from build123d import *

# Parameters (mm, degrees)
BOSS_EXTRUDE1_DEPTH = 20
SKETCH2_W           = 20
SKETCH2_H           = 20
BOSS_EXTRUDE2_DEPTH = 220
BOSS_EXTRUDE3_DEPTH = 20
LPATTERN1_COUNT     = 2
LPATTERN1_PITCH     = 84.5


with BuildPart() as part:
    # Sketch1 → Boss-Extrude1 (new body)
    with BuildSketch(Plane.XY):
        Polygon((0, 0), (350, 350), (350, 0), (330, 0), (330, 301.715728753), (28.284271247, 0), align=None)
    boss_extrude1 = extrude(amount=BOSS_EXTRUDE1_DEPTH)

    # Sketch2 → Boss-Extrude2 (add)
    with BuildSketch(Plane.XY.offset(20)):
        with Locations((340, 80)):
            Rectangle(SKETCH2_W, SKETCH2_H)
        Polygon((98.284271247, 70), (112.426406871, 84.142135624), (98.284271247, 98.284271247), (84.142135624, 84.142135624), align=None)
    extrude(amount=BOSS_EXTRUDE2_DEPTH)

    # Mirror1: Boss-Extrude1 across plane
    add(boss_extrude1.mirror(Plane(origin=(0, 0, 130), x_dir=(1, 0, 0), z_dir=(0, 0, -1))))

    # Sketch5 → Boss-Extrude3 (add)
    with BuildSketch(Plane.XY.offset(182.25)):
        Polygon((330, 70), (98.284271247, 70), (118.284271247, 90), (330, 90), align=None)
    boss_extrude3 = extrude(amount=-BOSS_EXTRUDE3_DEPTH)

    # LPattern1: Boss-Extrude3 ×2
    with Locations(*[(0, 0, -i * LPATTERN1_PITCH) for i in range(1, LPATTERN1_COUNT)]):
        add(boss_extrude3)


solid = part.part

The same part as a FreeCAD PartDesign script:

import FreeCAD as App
import Part
import Sketcher

V = App.Vector
Q = App.Units.Quantity

doc = App.newDocument("Part")
body = doc.addObject("PartDesign::Body", "Body")

# Sketch on XY plane
sketch1 = body.newObject("Sketcher::SketchObject", "Sketch")
sketch1.AttachmentSupport = (doc.getObject("XY_Plane"), [""])
sketch1.MapMode = "FlatFace"
sketch1.addGeometry(Part.LineSegment(V(350, 350, 0), V(0, 0, 0)), False)
sketch1.addGeometry(Part.LineSegment(V(0, 0, 0), V(28, 0, 0)), False)
sketch1.addGeometry(Part.LineSegment(V(28, 0, 0), V(330, 302, 0)), False)
sketch1.addGeometry(Part.LineSegment(V(330, 302, 0), V(330, 0, 0)), False)
sketch1.addGeometry(Part.LineSegment(V(330, 0, 0), V(350, 0, 0)), False)
sketch1.addGeometry(Part.LineSegment(V(350, 0, 0), V(350, 350, 0)), False)
sketch1.addConstraint(Sketcher.Constraint("Coincident", 0, 2, 1, 1))
sketch1.addConstraint(Sketcher.Constraint("Coincident", 1, 2, 2, 1))
sketch1.addConstraint(Sketcher.Constraint("Coincident", 2, 2, 3, 1))
sketch1.addConstraint(Sketcher.Constraint("Coincident", 3, 2, 4, 1))
sketch1.addConstraint(Sketcher.Constraint("Coincident", 4, 2, 5, 1))
sketch1.addConstraint(Sketcher.Constraint("Coincident", 5, 2, 0, 1))
sketch1.addConstraint(Sketcher.Constraint("Horizontal", 1))
sketch1.addConstraint(Sketcher.Constraint("Vertical", 3))
sketch1.addConstraint(Sketcher.Constraint("Horizontal", 4))
sketch1.addConstraint(Sketcher.Constraint("Vertical", 5))
sketch1.addConstraint(Sketcher.Constraint("Coincident", 0, 2, -1, 1))
sketch1.addConstraint(Sketcher.Constraint("PointOnObject", 3, 2, -1))
sketch1.addConstraint(Sketcher.Constraint("Parallel", 0, 2))
sketch1.addConstraint(Sketcher.Constraint("DistanceX", 4, 1, 4, 2, 20.0))
sketch1.addConstraint(Sketcher.Constraint("DistanceY", 5, 1, 5, 2, 350.0))
sketch1.addConstraint(Sketcher.Constraint("Angle", 0, Q("-135 deg")))
sketch1.addConstraint(Sketcher.Constraint("DistanceX", 1, 1, 1, 2, 28.284271))
pad1 = body.newObject("PartDesign::Pad", "Pad")
pad1.Profile = sketch1
pad1.Length = 20

# Sketch on XY plane
sketch2 = body.newObject("Sketcher::SketchObject", "Sketch001")
sketch2.AttachmentSupport = (doc.getObject("XY_Plane"), [""])
sketch2.MapMode = "FlatFace"
sketch2.AttachmentOffset = App.Placement(V(0, 0, 20), App.Rotation())
sketch2.addGeometry(Part.LineSegment(V(330, 90, 0), V(330, 70, 0)), False)
sketch2.addGeometry(Part.LineSegment(V(330, 70, 0), V(350, 70, 0)), False)
sketch2.addGeometry(Part.LineSegment(V(350, 70, 0), V(350, 90, 0)), False)
sketch2.addGeometry(Part.LineSegment(V(350, 90, 0), V(330, 90, 0)), False)
sketch2.addGeometry(Part.LineSegment(V(98, 70, 0), V(112, 84, 0)), False)
sketch2.addGeometry(Part.LineSegment(V(112, 84, 0), V(98, 98, 0)), False)
sketch2.addGeometry(Part.LineSegment(V(98, 98, 0), V(84, 84, 0)), False)
sketch2.addGeometry(Part.LineSegment(V(84, 84, 0), V(98, 70, 0)), False)
sketch2.addConstraint(Sketcher.Constraint("Coincident", 0, 2, 1, 1))
sketch2.addConstraint(Sketcher.Constraint("Coincident", 1, 2, 2, 1))
sketch2.addConstraint(Sketcher.Constraint("Coincident", 2, 2, 3, 1))
sketch2.addConstraint(Sketcher.Constraint("Coincident", 3, 2, 0, 1))
sketch2.addConstraint(Sketcher.Constraint("Coincident", 4, 2, 5, 1))
sketch2.addConstraint(Sketcher.Constraint("Coincident", 5, 2, 6, 1))
sketch2.addConstraint(Sketcher.Constraint("Coincident", 6, 2, 7, 1))
sketch2.addConstraint(Sketcher.Constraint("Coincident", 7, 2, 4, 1))
sketch2.addConstraint(Sketcher.Constraint("Vertical", 0))
sketch2.addConstraint(Sketcher.Constraint("Horizontal", 1))
sketch2.addConstraint(Sketcher.Constraint("Vertical", 2))
sketch2.addConstraint(Sketcher.Constraint("Horizontal", 3))
sketch2.addConstraint(Sketcher.Constraint("Perpendicular", 4, 5))
sketch2.addConstraint(Sketcher.Constraint("Perpendicular", 5, 6))
sketch2.addConstraint(Sketcher.Constraint("Perpendicular", 6, 7))
sketch2.addConstraint(Sketcher.Constraint("Horizontal", 4, 2, 6, 2))
sketch2.addConstraint(Sketcher.Constraint("Horizontal", 1, 2, 7, 2))
sketch2.addConstraint(Sketcher.Constraint("Vertical", 5, 2, 7, 2))
sketch2.addConstraint(Sketcher.Constraint("Equal", 3, 0))
sketch2.addConstraint(Sketcher.Constraint("DistanceX", 1, 1, 1, 2, 20.0))
sketch2.addConstraint(Sketcher.Constraint("Distance", 4, 20.0))
sketch2.addConstraint(Sketcher.Constraint("DistanceX", -1, 1, 0, 2, 330.0))
sketch2.addConstraint(Sketcher.Constraint("DistanceY", -1, 1, 0, 2, 70.0))
sketch2.addConstraint(Sketcher.Constraint("DistanceX", -1, 1, 5, 2, 98.284271))
pad2 = body.newObject("PartDesign::Pad", "Pad001")
pad2.Profile = sketch2
pad2.Length = 220
doc.recompute()

datumplane = body.newObject("PartDesign::Plane", "DatumPlane")
datumplane.AttachmentSupport = (doc.getObject("XY_Plane"), [""])
datumplane.MapMode = "FlatFace"
datumplane.AttachmentOffset = App.Placement(V(0, 0, 130), App.Rotation())
mirrored = body.newObject("PartDesign::Mirrored", "Mirrored")
mirrored.Originals = [pad1]
mirrored.MirrorPlane = (datumplane, [""])
body.Tip = mirrored

# Sketch on XY plane
sketch3 = body.newObject("Sketcher::SketchObject", "Sketch002")
sketch3.AttachmentSupport = (doc.getObject("XY_Plane"), [""])
sketch3.MapMode = "FlatFace"
sketch3.AttachmentOffset = App.Placement(V(0, 0, 182.25), App.Rotation())
sketch3.addGeometry(Part.LineSegment(V(98, 70, 0), V(330, 70, 0)), False)
sketch3.addGeometry(Part.LineSegment(V(330, 70, 0), V(330, 90, 0)), False)
sketch3.addGeometry(Part.LineSegment(V(330, 90, 0), V(118, 90, 0)), False)
sketch3.addGeometry(Part.LineSegment(V(118, 90, 0), V(98, 70, 0)), False)
sketch3.addConstraint(Sketcher.Constraint("Coincident", 0, 2, 1, 1))
sketch3.addConstraint(Sketcher.Constraint("Coincident", 1, 2, 2, 1))
sketch3.addConstraint(Sketcher.Constraint("Coincident", 2, 2, 3, 1))
sketch3.addConstraint(Sketcher.Constraint("Coincident", 3, 2, 0, 1))
sketch3.addConstraint(Sketcher.Constraint("Horizontal", 0))
sketch3.addConstraint(Sketcher.Constraint("Vertical", 1))
sketch3.addConstraint(Sketcher.Constraint("Horizontal", 2))
sketch3.addConstraint(Sketcher.Constraint("DistanceY", 1, 1, 1, 2, 20.0))
sketch3.addConstraint(Sketcher.Constraint("Angle", 3, Q("-135 deg")))
sketch3.addConstraint(Sketcher.Constraint("DistanceX", -1, 1, 0, 2, 330.0))
sketch3.addConstraint(Sketcher.Constraint("DistanceY", -1, 1, 0, 2, 70.0))
sketch3.addConstraint(Sketcher.Constraint("DistanceX", 0, 1, 0, 2, 231.715729))
pad3 = body.newObject("PartDesign::Pad", "Pad002")
pad3.Profile = sketch3
pad3.Length = 20
pad3.Reversed = True
doc.recompute()

linearpattern = body.newObject("PartDesign::LinearPattern", "LinearPattern")
linearpattern.Originals = [pad3]
linearpattern.Direction = (doc.getObject("Z_Axis"), [""])
linearpattern.Mode = "offset"
linearpattern.Offset = 84.5
linearpattern.Occurrences = 2
linearpattern.Reversed = True
body.Tip = linearpattern

doc.recompute()
